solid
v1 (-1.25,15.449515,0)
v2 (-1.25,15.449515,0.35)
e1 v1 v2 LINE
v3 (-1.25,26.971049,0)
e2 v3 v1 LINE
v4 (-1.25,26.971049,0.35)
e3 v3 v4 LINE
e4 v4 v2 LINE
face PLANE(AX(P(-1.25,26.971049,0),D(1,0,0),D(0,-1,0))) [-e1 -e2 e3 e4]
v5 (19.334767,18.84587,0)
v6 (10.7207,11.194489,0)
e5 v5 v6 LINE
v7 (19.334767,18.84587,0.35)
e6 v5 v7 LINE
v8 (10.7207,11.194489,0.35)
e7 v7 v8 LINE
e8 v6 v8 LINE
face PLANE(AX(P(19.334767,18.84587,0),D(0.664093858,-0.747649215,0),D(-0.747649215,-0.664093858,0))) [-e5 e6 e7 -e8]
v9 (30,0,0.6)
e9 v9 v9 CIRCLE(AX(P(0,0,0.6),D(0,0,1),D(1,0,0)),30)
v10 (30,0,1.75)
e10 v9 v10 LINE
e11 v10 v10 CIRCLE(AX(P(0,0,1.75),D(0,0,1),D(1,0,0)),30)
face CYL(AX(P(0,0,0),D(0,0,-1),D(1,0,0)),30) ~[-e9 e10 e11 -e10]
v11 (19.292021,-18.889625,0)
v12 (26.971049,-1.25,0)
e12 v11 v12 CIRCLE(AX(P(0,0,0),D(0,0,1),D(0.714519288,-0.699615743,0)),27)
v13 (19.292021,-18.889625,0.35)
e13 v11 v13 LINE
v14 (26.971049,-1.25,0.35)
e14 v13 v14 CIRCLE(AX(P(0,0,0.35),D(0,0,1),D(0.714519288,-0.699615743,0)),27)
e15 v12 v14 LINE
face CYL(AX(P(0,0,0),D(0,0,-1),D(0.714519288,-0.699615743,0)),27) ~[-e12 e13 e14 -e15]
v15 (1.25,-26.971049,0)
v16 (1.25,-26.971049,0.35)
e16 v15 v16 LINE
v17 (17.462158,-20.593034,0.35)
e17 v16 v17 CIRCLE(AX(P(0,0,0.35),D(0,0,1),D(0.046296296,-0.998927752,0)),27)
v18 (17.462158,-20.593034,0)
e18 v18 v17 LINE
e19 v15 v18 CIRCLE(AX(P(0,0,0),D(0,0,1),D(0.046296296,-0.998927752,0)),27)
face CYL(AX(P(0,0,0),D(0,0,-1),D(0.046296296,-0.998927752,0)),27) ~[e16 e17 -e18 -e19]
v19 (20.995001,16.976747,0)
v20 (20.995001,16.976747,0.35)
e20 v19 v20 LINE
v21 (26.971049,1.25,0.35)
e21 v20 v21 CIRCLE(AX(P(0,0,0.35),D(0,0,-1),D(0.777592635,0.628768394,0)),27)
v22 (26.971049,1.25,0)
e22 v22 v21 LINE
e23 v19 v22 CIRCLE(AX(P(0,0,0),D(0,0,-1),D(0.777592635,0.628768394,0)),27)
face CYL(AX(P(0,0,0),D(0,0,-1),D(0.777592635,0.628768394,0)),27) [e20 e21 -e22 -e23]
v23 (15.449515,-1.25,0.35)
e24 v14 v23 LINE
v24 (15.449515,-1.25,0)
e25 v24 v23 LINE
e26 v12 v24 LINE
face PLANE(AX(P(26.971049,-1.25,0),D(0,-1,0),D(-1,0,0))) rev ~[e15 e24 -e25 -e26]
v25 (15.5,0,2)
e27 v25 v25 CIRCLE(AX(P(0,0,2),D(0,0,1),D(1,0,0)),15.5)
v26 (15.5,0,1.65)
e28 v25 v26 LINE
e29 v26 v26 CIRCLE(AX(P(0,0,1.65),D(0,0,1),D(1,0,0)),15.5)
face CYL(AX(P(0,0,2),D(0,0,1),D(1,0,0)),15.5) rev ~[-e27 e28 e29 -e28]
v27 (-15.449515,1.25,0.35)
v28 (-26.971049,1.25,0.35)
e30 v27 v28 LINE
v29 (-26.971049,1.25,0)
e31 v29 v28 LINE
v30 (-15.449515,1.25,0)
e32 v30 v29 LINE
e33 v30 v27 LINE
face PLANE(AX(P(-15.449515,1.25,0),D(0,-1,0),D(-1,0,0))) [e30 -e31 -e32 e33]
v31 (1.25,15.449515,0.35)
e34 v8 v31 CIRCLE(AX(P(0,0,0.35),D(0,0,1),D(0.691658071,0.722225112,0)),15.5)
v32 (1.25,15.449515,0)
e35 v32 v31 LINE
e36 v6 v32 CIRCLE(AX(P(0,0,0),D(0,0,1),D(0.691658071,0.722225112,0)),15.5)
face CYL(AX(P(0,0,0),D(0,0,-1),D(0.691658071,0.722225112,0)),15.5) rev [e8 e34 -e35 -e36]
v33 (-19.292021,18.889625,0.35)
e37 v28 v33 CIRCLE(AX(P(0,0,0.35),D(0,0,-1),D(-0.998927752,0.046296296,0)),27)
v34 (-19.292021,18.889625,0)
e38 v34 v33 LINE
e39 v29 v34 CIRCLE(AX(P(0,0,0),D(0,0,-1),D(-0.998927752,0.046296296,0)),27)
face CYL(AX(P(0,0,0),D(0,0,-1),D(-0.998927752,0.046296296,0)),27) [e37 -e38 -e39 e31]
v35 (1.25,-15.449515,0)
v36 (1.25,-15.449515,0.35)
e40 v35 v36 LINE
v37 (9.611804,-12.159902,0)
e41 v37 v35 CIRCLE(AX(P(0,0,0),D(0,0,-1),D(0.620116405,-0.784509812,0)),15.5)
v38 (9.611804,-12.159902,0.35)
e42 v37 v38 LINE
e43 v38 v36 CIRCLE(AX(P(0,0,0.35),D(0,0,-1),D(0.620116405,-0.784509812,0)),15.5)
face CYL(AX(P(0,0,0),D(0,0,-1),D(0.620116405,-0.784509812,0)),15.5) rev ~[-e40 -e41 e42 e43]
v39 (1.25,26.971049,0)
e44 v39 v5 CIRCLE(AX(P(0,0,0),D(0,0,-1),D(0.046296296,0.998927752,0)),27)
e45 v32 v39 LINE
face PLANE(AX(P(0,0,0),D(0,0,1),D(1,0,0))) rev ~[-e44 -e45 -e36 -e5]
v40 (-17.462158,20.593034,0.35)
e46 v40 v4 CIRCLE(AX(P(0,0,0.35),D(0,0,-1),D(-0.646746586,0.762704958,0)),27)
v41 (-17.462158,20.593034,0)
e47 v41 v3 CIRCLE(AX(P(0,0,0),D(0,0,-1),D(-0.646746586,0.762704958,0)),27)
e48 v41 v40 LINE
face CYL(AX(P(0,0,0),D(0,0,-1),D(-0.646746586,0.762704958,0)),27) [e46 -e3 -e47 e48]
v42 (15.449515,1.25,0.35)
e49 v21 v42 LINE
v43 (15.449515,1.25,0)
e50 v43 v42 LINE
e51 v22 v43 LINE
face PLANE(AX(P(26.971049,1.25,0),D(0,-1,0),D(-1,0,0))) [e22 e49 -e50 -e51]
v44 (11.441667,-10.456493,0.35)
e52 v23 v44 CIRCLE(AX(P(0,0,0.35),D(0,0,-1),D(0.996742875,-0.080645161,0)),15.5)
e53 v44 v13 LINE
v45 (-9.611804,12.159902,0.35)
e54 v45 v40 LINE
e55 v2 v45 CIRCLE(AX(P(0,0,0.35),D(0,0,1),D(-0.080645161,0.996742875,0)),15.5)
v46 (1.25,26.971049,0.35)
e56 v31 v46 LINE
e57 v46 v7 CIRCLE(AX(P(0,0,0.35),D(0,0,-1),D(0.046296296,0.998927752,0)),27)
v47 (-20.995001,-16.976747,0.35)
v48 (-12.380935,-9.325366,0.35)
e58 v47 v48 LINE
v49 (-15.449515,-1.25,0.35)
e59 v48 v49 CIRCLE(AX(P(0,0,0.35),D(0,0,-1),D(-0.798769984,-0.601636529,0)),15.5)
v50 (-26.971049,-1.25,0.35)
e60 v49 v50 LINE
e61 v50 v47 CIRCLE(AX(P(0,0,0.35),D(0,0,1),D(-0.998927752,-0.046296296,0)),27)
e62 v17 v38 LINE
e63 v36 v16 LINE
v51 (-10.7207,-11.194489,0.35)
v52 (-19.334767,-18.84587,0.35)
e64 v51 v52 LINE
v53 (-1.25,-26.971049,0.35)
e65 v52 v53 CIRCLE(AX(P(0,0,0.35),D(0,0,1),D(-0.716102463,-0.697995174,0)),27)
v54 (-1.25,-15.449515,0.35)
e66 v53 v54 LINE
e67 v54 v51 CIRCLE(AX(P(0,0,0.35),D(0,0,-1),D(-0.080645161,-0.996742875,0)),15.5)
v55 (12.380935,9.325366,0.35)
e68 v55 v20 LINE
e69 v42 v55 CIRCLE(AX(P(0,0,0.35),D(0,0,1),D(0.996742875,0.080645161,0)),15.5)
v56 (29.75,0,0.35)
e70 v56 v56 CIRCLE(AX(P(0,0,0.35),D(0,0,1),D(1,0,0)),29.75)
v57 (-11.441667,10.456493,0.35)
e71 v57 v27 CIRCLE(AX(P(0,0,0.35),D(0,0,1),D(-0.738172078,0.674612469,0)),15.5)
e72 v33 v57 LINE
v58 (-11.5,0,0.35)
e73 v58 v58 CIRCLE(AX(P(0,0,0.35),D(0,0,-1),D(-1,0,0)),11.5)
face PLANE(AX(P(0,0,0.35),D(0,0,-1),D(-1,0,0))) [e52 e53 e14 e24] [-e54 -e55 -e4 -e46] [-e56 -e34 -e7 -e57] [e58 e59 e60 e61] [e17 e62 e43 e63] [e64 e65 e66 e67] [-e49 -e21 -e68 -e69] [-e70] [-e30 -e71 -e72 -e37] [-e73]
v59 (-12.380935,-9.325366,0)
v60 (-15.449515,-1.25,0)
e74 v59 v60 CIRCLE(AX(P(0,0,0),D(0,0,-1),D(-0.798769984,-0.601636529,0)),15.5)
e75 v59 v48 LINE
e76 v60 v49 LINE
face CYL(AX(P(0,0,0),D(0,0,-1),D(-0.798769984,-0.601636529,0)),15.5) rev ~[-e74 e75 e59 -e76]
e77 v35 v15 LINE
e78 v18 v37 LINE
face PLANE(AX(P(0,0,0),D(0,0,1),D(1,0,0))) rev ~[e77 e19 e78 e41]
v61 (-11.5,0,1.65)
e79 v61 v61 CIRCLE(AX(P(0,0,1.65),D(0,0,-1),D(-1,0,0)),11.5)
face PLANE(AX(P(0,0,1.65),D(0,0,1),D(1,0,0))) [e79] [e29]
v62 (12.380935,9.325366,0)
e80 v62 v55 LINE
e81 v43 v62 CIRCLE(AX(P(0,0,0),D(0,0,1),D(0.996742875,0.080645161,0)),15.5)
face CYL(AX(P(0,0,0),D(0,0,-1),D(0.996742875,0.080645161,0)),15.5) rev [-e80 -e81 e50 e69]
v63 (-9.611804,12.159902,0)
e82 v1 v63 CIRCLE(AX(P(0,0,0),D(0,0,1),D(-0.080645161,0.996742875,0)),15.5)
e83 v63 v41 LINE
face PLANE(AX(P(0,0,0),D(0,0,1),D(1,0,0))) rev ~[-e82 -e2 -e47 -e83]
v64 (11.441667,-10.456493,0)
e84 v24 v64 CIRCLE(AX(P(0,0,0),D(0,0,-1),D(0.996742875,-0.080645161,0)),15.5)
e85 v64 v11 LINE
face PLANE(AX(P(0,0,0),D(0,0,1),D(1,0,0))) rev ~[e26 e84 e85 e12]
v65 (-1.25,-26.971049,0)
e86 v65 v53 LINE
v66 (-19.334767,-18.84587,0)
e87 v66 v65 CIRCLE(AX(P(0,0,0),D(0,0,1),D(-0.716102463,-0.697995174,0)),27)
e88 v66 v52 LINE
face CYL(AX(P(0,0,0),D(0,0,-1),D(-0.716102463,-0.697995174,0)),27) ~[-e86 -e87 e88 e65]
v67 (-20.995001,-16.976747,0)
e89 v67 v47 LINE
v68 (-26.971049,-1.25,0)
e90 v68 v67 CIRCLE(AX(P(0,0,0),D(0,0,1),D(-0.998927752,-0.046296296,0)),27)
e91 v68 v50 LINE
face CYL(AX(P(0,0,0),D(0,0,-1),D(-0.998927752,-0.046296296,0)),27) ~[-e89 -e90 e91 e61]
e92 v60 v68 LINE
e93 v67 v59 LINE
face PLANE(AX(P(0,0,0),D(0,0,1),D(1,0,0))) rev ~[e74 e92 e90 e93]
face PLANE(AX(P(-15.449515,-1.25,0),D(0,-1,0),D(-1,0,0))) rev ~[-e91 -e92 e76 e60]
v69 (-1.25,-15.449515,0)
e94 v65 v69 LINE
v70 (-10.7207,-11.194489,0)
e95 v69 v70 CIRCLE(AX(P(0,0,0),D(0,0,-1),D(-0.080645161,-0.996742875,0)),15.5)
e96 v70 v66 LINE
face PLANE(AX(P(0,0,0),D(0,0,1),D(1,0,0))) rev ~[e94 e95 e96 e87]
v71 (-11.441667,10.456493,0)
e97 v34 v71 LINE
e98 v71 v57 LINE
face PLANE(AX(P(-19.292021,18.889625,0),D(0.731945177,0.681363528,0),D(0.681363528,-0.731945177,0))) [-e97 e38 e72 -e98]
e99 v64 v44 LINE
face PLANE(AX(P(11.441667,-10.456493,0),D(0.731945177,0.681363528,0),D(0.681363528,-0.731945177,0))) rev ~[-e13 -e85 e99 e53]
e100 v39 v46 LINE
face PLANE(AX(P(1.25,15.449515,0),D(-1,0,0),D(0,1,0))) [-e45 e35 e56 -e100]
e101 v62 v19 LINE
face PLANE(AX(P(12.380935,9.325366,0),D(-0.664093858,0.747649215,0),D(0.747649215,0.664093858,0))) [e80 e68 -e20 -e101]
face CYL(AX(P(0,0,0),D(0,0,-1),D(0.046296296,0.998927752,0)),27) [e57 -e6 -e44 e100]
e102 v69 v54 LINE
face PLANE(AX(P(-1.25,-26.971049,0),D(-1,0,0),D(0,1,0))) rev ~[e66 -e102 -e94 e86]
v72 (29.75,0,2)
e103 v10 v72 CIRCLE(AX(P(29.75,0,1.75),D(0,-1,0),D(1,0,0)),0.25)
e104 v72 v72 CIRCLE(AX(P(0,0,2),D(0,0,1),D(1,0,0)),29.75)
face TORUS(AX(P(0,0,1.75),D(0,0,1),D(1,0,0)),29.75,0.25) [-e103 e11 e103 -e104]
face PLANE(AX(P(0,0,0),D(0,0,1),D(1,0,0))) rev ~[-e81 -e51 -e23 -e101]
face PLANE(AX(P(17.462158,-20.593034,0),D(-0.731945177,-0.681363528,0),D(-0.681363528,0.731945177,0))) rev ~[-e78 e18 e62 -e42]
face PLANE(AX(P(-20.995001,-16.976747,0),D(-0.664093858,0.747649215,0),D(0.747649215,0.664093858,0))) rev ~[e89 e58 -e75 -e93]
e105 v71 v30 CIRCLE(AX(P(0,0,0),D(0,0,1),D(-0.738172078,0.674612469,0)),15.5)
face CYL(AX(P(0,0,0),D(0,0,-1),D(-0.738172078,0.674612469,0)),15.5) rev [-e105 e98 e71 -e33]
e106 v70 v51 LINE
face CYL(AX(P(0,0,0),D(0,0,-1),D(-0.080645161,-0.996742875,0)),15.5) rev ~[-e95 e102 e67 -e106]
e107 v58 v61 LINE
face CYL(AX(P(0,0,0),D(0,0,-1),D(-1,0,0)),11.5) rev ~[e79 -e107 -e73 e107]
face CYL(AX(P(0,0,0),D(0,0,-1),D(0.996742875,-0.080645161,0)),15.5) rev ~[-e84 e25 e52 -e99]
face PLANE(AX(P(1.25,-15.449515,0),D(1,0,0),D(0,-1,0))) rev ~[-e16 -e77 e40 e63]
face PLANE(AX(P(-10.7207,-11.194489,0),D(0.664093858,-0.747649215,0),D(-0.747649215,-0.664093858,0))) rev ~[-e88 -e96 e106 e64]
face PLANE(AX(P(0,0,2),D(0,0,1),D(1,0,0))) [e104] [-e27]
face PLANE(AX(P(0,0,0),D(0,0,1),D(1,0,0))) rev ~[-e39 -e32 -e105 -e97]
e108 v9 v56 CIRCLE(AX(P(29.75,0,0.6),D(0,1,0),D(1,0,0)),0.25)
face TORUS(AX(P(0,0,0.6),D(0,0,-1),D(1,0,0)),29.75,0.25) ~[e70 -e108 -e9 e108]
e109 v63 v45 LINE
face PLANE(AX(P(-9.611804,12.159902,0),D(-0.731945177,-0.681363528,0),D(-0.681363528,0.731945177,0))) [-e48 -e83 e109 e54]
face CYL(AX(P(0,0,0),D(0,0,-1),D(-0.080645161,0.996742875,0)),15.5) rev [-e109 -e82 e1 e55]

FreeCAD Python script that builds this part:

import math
import FreeCAD as App
import Part
import Sketcher
from FreeCAD import Vector
Q = App.Units.Quantity


def edges_at(feature, points):
    """Names of the edges that pass closest to the given points."""
    edges = feature.Shape.Edges
    near = lambda p: min(range(len(edges)), key=lambda i: edges[i].distToShape(Part.Vertex(*p))[0])
    return sorted({f"Edge{near(p) + 1}" for p in points})

doc = App.newDocument("Part")
body = doc.addObject("PartDesign::Body", "Body")

# Sketch on XY plane
sketch1 = body.newObject("Sketcher::SketchObject", "Sketch")
sketch1.AttachmentSupport = (doc.getObject("XY_Plane"), [""])
sketch1.MapMode = "FlatFace"
sketch1.addGeometry(Part.Circle(Vector(0, 0, 0), Vector(0, 0, 1), 30), False)
sketch1.addConstraint([
    Sketcher.Constraint("Coincident", 0, 3, -1, 1),
    Sketcher.Constraint("Diameter", 0, Q("60 mm")),
])
pad1 = body.newObject("PartDesign::Pad", "Pad")
pad1.Profile = sketch1
pad1.Length = 2

# Sketch on XY plane
sketch2 = body.newObject("Sketcher::SketchObject", "Sketch001")
sketch2.AttachmentSupport = (doc.getObject("XY_Plane"), [""])
sketch2.MapMode = "FlatFace"
sketch2.addGeometry([
    Part.Circle(Vector(0, 0, 0), Vector(0, 0, 1), 30),  # 0
    Part.ArcOfCircle(Part.Circle(Vector(0, 0, 0), Vector(0, 0, 1), 27), math.radians(-87), math.radians(-50)),  # 1
    Part.LineSegment(Vector(17, -21, 0), Vector(10, -12, 0)),  # 2
    Part.ArcOfCircle(Part.Circle(Vector(0, 0, 0), Vector(0, 0, 1), 16), math.radians(-85), math.radians(-52)),  # 3
    Part.LineSegment(Vector(1, -15, 0), Vector(1, -27, 0)),  # 4
    Part.ArcOfCircle(Part.Circle(Vector(0, 0, 0), Vector(0, 0, 1), 27), math.radians(-44), math.radians(-3)),  # 5
    Part.LineSegment(Vector(27, -1, 0), Vector(15, -1, 0)),  # 6
    Part.ArcOfCircle(Part.Circle(Vector(0, 0, 0), Vector(0, 0, 1), 15), math.radians(-42), math.radians(-5)),  # 7
    Part.LineSegment(Vector(11, -10, 0), Vector(19, -19, 0)),  # 8
    Part.ArcOfCircle(Part.Circle(Vector(0, 0, 0), Vector(0, 0, 1), 27), math.radians(-136), math.radians(-93)),  # 9
    Part.LineSegment(Vector(-1, -27, 0), Vector(-1, -15, 0)),  # 10
    Part.ArcOfCircle(Part.Circle(Vector(0, 0, 0), Vector(0, 0, 1), 15), math.radians(-134), math.radians(-95)),  # 11
    Part.LineSegment(Vector(-11, -11, 0), Vector(-19, -19, 0)),  # 12
    Part.ArcOfCircle(Part.Circle(Vector(0, 0, 0), Vector(0, 0, 1), 27), math.radians(-177), math.radians(-141)),  # 13
    Part.LineSegment(Vector(-21, -17, 0), Vector(-12, -9, 0)),  # 14
    Part.ArcOfCircle(Part.Circle(Vector(0, 0, 0), Vector(0, 0, 1), 16), math.radians(-175), math.radians(-143)),  # 15
    Part.LineSegment(Vector(-15, -1, 0), Vector(-27, -1, 0)),  # 16
    Part.LineSegment(Vector(15, 1, 0), Vector(27, 1, 0)),  # 17
    Part.ArcOfCircle(Part.Circle(Vector(0, 0, 0), Vector(0, 0, 1), 27), math.radians(3), math.radians(39)),  # 18
    Part.LineSegment(Vector(21, 17, 0), Vector(12, 9, 0)),  # 19
    Part.ArcOfCircle(Part.Circle(Vector(0, 0, 0), Vector(0, 0, 1), 16), math.radians(5), math.radians(37)),  # 20
    Part.LineSegment(Vector(1, 27, 0), Vector(1, 15, 0)),  # 21
    Part.ArcOfCircle(Part.Circle(Vector(0, 0, 0), Vector(0, 0, 1), 16), math.radians(46), math.radians(85)),  # 22
    Part.LineSegment(Vector(11, 11, 0), Vector(19, 19, 0)),  # 23
    Part.ArcOfCircle(Part.Circle(Vector(0, 0, 0), Vector(0, 0, 1), 27), math.radians(44), math.radians(87)),  # 24
    Part.Circle(Vector(0, 0, 0), Vector(0, 0, 1), 12),  # 25
    Part.LineSegment(Vector(-27, 1, 0), Vector(-15, 1, 0)),  # 26
    Part.ArcOfCircle(Part.Circle(Vector(0, 0, 0), Vector(0, 0, 1), 15), math.radians(138), math.radians(175)),  # 27
    Part.LineSegment(Vector(-11, 10, 0), Vector(-19, 19, 0)),  # 28
    Part.ArcOfCircle(Part.Circle(Vector(0, 0, 0), Vector(0, 0, 1), 27), math.radians(136), math.radians(177)),  # 29
    Part.LineSegment(Vector(-17, 21, 0), Vector(-10, 12, 0)),  # 30
    Part.ArcOfCircle(Part.Circle(Vector(0, 0, 0), Vector(0, 0, 1), 16), math.radians(95), math.radians(128)),  # 31
    Part.LineSegment(Vector(-1, 15, 0), Vector(-1, 27, 0)),  # 32
    Part.ArcOfCircle(Part.Circle(Vector(0, 0, 0), Vector(0, 0, 1), 27), math.radians(93), math.radians(130)),  # 33
], False)
sketch2.addConstraint([
    Sketcher.Constraint("Coincident", 1, 2, 2, 1),
    Sketcher.Constraint("Coincident", 2, 2, 3, 2),
    Sketcher.Constraint("Coincident", 3, 1, 4, 1),
    Sketcher.Constraint("Coincident", 4, 2, 1, 1),
    Sketcher.Constraint("Coincident", 5, 2, 6, 1),
    Sketcher.Constraint("Coincident", 6, 2, 7, 2),
    Sketcher.Constraint("Coincident", 7, 1, 8, 1),
    Sketcher.Constraint("Coincident", 8, 2, 5, 1),
    Sketcher.Constraint("Coincident", 9, 2, 10, 1),
    Sketcher.Constraint("Coincident", 10, 2, 11, 2),
    Sketcher.Constraint("Coincident", 11, 1, 12, 1),
    Sketcher.Constraint("Coincident", 12, 2, 9, 1),
    Sketcher.Constraint("Coincident", 13, 2, 14, 1),
    Sketcher.Constraint("Coincident", 14, 2, 15, 2),
    Sketcher.Constraint("Coincident", 15, 1, 16, 1),
    Sketcher.Constraint("Coincident", 16, 2, 13, 1),
    Sketcher.Constraint("Coincident", 17, 2, 18, 1),
    Sketcher.Constraint("Coincident", 18, 2, 19, 1),
    Sketcher.Constraint("Coincident", 19, 2, 20, 2),
    Sketcher.Constraint("Coincident", 20, 1, 17, 1),
    Sketcher.Constraint("Coincident", 21, 2, 22, 2),
    Sketcher.Constraint("Coincident", 22, 1, 23, 1),
    Sketcher.Constraint("Coincident", 23, 2, 24, 1),
    Sketcher.Constraint("Coincident", 24, 2, 21, 1),
    Sketcher.Constraint("Coincident", 26, 2, 27, 2),
    Sketcher.Constraint("Coincident", 27, 1, 28, 1),
    Sketcher.Constraint("Coincident", 28, 2, 29, 1),
    Sketcher.Constraint("Coincident", 29, 2, 26, 1),
    Sketcher.Constraint("Coincident", 30, 2, 31, 2),
    Sketcher.Constraint("Coincident", 31, 1, 32, 1),
    Sketcher.Constraint("Coincident", 32, 2, 33, 1),
    Sketcher.Constraint("Coincident", 33, 2, 30, 1),
    Sketcher.Constraint("Vertical", 4),
    Sketcher.Constraint("Horizontal", 6),
    Sketcher.Constraint("Vertical", 10),
    Sketcher.Constraint("Horizontal", 16),
    Sketcher.Constraint("Horizontal", 17),
    Sketcher.Constraint("Vertical", 21),
    Sketcher.Constraint("Horizontal", 26),
    Sketcher.Constraint("Vertical", 32),
    Sketcher.Constraint("Coincident", 0, 3, -1, 1),
    Sketcher.Constraint("Coincident", 1, 3, -1, 1),
    Sketcher.Constraint("Coincident", 3, 3, -1, 1),
    Sketcher.Constraint("Coincident", 5, 3, -1, 1),
    Sketcher.Constraint("Coincident", 7, 3, -1, 1),
    Sketcher.Constraint("Coincident", 9, 3, -1, 1),
    Sketcher.Constraint("Coincident", 11, 3, -1, 1),
    Sketcher.Constraint("Coincident", 13, 3, -1, 1),
    Sketcher.Constraint("Coincident", 15, 3, -1, 1),
    Sketcher.Constraint("Coincident", 18, 3, -1, 1),
    Sketcher.Constraint("Coincident", 20, 3, -1, 1),
    Sketcher.Constraint("Coincident", 22, 3, -1, 1),
    Sketcher.Constraint("Coincident", 24, 3, -1, 1),
    Sketcher.Constraint("Coincident", 25, 3, -1, 1),
    Sketcher.Constraint("Coincident", 27, 3, -1, 1),
    Sketcher.Constraint("Coincident", 29, 3, -1, 1),
    Sketcher.Constraint("Coincident", 31, 3, -1, 1),
    Sketcher.Constraint("Coincident", 33, 3, -1, 1),
    Sketcher.Constraint("Equal", 1, 5),
    Sketcher.Constraint("Equal", 3, 7),
    Sketcher.Constraint("Equal", 5, 9),
    Sketcher.Constraint("Equal", 7, 11),
    Sketcher.Constraint("Equal", 9, 13),
    Sketcher.Constraint("Equal", 11, 15),
    Sketcher.Constraint("Equal", 13, 18),
    Sketcher.Constraint("Equal", 15, 20),
    Sketcher.Constraint("Equal", 20, 22),
    Sketcher.Constraint("Equal", 18, 24),
    Sketcher.Constraint("Equal", 22, 27),
    Sketcher.Constraint("Equal", 24, 29),
    Sketcher.Constraint("Equal", 27, 31),
    Sketcher.Constraint("Equal", 29, 33),
    Sketcher.Constraint("Parallel", 2, 8),
    Sketcher.Constraint("Parallel", 12, 14),
    Sketcher.Constraint("Parallel", 14, 19),
    Sketcher.Constraint("Parallel", 19, 23),
    Sketcher.Constraint("Parallel", 8, 28),
    Sketcher.Constraint("Parallel", 28, 30),
    Sketcher.Constraint("Horizontal", 4, 2, 9, 2),
    Sketcher.Constraint("Horizontal", 6, 2, 15, 1),
    Sketcher.Constraint("Horizontal", 20, 1, 26, 2),
    Sketcher.Constraint("Horizontal", 21, 2, 31, 1),
    Sketcher.Constraint("Vertical", 5, 2, 17, 2),
    Sketcher.Constraint("Vertical", 4, 2, 21, 2),
    Sketcher.Constraint("Equal", 26, 4),
    Sketcher.Constraint("Equal", 2, 8),
    Sketcher.Constraint("Equal", 8, 12),
    Sketcher.Constraint("Equal", 12, 14),
    Sketcher.Constraint("Equal", 14, 19),
    Sketcher.Constraint("Equal", 19, 23),
    Sketcher.Constraint("Equal", 23, 28),
    Sketcher.Constraint("Equal", 28, 30),
    Sketcher.Constraint("Diameter", 0, Q("60 mm")),
    Sketcher.Constraint("Diameter", 25, Q("23 mm")),
    Sketcher.Constraint("Radius", 1, Q("27 mm")),
    Sketcher.Constraint("Radius", 3, Q("15.5 mm")),
    Sketcher.Constraint("DistanceX", 9, 2, 4, 2, Q("2.5 mm")),
    Sketcher.Constraint("DistanceX", 13, 2, -1, 1, Q("20.995001 mm")),
    Sketcher.Constraint("DistanceX", 11, 1, -1, 1, Q("10.7207 mm")),
    Sketcher.Constraint("DistanceX", -1, 1, 8, 2, Q("19.292021 mm")),
])
pocket1 = body.newObject("PartDesign::Pocket", "Pocket")
pocket1.Profile = sketch2
pocket1.Length = 0.35
pocket1.Reversed = True

# Sketch on XY plane
sketch3 = body.newObject("Sketcher::SketchObject", "Sketch002")
sketch3.AttachmentSupport = (doc.getObject("XY_Plane"), [""])
sketch3.MapMode = "FlatFace"
sketch3.addGeometry(Part.Circle(Vector(0, 0, 0), Vector(0, 0, 1), 12), False)
sketch3.addConstraint([
    Sketcher.Constraint("Coincident", 0, 3, -1, 1),
    Sketcher.Constraint("Diameter", 0, Q("23 mm")),
])
pocket2 = body.newObject("PartDesign::Pocket", "Pocket001")
pocket2.Profile = sketch3
pocket2.Type = "ThroughAll"
pocket2.Midplane = True
doc.recompute()

fillet = body.newObject("PartDesign::Fillet", "Fillet")
fillet.Base = (pocket2, edges_at(pocket2, [(-30, 0, 0.35), (-30, 0, 2)]))
fillet.Radius = 0.25

# Sketch on XY plane
sketch4 = body.newObject("Sketcher::SketchObject", "Sketch003")
sketch4.AttachmentSupport = (doc.getObject("XY_Plane"), [""])
sketch4.MapMode = "FlatFace"
sketch4.AttachmentOffset = App.Placement(Vector(0, 0, 2), App.Rotation())
sketch4.addGeometry(Part.Circle(Vector(0, 0, 0), Vector(0, 0, 1), 16), False)
sketch4.addConstraint([
    Sketcher.Constraint("Coincident", 0, 3, -1, 1),
    Sketcher.Constraint("Diameter", 0, Q("31 mm")),
])
pocket3 = body.newObject("PartDesign::Pocket", "Pocket002")
pocket3.Profile = sketch4
pocket3.Length = 0.35

doc.recompute()
